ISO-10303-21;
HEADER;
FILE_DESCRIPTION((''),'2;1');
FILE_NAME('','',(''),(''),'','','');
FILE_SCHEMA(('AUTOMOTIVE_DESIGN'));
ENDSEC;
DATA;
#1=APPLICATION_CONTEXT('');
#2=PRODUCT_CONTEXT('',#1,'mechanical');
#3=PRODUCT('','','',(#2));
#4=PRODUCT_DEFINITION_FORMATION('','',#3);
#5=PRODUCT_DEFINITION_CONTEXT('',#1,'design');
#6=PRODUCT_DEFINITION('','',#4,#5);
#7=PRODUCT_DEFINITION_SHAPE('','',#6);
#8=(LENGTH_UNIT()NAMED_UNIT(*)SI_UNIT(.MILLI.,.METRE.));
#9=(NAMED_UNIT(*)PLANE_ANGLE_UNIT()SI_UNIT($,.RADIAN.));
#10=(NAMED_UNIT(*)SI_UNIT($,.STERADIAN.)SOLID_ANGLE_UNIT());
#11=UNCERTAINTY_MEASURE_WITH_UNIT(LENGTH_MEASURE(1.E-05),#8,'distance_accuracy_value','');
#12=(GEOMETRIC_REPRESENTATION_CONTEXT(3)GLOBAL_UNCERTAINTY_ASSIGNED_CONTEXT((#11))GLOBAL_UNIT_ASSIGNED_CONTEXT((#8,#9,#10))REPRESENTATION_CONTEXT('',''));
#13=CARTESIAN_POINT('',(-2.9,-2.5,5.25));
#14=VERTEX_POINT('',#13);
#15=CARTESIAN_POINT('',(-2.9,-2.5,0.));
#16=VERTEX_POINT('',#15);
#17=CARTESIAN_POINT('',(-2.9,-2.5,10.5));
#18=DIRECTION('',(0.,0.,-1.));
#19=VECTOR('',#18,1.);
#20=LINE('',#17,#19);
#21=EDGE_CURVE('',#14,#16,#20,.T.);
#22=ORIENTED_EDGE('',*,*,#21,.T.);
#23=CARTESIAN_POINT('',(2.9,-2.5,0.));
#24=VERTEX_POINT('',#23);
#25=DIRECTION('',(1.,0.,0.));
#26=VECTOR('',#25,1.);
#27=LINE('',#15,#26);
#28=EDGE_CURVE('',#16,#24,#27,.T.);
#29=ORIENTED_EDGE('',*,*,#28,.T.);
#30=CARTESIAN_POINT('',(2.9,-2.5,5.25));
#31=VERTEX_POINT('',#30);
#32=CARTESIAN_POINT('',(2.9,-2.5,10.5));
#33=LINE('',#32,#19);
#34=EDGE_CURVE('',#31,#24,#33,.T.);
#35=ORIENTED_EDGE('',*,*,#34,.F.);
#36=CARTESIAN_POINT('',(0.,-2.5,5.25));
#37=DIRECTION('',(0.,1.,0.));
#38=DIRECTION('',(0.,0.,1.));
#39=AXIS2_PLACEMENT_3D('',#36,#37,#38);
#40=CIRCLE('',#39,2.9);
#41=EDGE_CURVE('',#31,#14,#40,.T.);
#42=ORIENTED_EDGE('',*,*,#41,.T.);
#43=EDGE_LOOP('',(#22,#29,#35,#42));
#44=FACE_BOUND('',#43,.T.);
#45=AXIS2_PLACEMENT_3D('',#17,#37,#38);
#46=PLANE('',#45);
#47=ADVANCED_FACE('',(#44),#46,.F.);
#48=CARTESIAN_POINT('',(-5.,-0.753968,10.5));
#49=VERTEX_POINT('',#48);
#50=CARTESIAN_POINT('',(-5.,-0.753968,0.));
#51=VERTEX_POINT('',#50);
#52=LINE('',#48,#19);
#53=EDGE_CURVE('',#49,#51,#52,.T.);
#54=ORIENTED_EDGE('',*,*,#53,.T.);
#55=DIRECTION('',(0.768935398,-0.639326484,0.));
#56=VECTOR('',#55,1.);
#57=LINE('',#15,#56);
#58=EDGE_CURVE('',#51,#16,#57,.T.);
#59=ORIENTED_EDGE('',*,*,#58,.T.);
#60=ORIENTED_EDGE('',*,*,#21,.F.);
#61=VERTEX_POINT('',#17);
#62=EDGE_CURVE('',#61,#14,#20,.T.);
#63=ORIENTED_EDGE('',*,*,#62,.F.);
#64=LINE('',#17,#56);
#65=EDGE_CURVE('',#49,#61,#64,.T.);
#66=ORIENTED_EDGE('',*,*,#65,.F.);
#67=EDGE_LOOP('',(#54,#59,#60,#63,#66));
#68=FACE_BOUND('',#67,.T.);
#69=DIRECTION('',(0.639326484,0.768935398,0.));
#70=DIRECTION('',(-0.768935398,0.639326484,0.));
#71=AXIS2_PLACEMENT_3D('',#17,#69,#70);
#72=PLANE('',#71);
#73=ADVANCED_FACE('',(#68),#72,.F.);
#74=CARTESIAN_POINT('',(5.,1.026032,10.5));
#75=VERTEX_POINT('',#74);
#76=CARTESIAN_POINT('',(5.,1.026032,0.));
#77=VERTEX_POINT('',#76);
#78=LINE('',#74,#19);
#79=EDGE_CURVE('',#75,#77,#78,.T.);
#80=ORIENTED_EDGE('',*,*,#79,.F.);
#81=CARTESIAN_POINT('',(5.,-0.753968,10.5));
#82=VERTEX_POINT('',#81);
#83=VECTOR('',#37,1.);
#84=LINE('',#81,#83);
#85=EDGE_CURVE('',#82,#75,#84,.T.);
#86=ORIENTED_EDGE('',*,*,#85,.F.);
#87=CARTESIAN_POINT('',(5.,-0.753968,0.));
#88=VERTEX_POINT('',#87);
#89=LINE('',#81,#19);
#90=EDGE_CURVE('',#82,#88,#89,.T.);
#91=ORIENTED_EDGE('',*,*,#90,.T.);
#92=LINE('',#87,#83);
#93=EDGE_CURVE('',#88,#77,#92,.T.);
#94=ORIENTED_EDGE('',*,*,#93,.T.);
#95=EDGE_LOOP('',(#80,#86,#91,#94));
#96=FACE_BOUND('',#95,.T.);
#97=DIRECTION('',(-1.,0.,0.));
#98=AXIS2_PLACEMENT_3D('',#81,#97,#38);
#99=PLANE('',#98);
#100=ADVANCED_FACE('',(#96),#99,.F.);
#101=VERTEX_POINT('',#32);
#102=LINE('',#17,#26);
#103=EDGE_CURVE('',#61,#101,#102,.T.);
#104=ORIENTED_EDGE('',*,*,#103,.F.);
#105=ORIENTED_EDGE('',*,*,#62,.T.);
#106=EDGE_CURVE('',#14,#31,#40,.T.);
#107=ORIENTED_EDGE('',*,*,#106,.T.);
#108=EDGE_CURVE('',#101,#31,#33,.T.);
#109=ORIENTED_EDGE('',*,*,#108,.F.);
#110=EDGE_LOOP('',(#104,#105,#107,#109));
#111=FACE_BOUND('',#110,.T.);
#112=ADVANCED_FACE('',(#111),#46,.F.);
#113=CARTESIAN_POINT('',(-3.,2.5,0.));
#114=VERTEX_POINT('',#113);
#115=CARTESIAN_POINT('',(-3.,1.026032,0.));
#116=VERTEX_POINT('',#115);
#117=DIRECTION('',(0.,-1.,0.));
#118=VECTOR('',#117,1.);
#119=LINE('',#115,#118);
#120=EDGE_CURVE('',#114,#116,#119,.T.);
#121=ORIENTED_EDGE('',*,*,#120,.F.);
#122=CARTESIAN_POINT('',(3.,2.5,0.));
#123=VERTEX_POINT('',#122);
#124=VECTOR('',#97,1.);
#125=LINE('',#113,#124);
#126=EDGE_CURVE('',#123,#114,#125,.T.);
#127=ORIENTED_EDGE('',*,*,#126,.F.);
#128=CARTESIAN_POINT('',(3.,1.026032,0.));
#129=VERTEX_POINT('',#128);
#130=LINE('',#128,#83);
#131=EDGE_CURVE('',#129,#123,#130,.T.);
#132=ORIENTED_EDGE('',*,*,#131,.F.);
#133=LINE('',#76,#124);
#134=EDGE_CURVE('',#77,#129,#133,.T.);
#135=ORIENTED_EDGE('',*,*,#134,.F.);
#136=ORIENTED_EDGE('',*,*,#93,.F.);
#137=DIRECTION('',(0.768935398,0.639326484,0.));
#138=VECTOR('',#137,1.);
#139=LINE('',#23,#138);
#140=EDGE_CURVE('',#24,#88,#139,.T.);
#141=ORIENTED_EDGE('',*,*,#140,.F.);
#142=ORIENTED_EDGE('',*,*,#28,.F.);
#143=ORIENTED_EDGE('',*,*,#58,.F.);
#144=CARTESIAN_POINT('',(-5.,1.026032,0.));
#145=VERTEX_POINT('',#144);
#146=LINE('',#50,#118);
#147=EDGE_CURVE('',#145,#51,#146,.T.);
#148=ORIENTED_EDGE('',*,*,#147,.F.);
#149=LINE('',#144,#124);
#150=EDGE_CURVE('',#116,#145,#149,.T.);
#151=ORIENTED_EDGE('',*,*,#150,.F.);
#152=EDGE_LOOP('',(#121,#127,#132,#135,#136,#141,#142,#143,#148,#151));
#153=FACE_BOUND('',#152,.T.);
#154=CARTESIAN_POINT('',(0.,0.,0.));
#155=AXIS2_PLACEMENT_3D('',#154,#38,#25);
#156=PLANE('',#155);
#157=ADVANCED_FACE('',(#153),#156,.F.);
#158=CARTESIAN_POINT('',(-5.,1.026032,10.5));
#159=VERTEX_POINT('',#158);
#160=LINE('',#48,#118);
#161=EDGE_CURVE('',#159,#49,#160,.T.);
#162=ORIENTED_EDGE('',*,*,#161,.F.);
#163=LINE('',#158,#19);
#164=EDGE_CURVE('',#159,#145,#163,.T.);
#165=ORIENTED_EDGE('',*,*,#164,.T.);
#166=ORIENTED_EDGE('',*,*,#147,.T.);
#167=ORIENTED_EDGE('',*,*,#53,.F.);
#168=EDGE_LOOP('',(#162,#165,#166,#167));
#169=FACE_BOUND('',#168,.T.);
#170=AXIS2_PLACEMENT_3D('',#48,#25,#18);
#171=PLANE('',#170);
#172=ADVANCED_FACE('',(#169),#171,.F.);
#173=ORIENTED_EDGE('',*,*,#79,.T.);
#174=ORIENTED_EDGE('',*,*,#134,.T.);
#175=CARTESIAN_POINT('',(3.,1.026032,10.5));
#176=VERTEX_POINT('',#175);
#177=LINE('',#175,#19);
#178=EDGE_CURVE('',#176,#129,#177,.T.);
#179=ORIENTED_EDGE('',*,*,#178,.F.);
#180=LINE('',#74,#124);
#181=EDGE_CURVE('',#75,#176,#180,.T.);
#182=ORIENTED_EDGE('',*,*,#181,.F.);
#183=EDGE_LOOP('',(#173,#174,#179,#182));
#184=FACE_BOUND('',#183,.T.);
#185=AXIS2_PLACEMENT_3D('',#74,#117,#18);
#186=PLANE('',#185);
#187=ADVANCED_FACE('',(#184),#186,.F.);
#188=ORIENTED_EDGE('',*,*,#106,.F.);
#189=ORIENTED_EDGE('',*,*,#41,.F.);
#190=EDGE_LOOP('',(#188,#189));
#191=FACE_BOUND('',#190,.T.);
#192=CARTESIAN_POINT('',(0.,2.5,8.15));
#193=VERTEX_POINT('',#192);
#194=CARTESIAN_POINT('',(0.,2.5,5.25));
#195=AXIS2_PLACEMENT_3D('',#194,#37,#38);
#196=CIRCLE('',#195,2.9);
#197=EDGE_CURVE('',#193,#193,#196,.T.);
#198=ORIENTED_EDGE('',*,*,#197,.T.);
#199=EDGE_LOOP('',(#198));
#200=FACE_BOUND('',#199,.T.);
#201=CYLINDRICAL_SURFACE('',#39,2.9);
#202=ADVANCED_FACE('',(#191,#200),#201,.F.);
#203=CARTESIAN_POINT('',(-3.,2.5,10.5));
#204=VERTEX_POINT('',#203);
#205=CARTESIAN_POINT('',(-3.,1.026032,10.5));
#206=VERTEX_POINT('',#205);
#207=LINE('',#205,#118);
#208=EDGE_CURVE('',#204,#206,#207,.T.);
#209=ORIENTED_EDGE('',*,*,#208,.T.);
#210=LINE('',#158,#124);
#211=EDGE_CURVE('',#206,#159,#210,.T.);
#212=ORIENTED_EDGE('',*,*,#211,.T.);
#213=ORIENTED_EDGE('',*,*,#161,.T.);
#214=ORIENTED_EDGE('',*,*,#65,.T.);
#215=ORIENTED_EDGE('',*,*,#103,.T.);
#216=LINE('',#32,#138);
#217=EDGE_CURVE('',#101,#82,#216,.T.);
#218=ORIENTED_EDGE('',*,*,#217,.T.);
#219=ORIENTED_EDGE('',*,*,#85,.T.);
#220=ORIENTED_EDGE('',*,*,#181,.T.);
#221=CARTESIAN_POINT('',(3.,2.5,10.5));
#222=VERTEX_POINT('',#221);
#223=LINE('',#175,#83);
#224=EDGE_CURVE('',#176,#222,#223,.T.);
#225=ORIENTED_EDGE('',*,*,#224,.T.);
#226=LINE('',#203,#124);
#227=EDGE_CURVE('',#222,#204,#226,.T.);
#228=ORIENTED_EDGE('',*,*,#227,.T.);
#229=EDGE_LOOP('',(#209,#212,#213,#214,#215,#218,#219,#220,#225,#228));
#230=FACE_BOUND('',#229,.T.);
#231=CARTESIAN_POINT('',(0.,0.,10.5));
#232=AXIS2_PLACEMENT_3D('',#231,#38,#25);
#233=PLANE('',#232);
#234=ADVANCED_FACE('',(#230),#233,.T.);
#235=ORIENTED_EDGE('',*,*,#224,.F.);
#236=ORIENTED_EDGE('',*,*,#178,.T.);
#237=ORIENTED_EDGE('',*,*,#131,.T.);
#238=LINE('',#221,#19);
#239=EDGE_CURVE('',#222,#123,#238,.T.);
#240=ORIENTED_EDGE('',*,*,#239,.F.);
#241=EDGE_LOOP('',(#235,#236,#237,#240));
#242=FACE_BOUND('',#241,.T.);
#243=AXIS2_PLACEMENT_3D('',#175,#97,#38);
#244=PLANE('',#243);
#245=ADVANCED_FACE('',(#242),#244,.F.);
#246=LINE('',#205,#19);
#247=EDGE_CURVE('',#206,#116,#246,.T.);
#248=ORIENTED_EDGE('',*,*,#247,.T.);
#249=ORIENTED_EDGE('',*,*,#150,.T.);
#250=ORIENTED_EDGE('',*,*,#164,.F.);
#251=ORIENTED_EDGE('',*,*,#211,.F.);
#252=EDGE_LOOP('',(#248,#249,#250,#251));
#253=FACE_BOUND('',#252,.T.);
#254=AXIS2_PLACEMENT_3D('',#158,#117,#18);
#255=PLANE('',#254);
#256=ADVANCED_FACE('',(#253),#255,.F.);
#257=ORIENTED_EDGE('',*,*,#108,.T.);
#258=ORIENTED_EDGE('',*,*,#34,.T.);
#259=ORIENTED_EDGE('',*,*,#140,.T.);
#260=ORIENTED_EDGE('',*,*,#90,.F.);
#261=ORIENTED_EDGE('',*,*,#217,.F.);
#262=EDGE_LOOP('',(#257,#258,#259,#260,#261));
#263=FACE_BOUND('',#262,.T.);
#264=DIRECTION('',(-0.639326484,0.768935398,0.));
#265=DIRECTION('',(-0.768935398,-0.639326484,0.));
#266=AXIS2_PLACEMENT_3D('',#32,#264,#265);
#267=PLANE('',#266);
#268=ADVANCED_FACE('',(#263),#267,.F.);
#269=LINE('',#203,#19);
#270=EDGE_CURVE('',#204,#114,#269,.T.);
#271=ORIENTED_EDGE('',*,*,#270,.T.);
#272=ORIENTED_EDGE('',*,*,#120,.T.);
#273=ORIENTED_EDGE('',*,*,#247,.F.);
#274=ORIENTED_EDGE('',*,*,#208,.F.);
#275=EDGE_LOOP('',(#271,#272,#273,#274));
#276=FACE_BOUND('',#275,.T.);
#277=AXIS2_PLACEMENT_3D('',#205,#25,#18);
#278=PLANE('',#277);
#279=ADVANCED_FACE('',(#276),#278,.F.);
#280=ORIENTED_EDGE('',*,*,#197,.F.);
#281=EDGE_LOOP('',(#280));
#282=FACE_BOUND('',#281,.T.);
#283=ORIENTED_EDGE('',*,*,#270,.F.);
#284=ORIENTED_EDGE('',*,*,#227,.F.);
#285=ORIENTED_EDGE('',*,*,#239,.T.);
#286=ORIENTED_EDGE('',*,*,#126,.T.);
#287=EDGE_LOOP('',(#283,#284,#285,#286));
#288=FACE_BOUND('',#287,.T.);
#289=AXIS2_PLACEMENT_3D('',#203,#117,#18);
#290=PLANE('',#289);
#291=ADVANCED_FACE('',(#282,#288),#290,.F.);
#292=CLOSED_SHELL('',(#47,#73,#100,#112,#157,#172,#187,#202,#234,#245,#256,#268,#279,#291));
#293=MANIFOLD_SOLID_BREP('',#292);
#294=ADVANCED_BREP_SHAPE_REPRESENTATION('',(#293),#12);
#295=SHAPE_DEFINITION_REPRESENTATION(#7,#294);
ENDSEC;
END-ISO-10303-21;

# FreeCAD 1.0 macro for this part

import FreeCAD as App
import Part
import Sketcher
from FreeCAD import Vector


def add_polygon(sketch, points):
    """Adds a closed chain of lines whose ends are joined by coincident constraints."""
    first, n = sketch.GeometryCount, len(points)
    for a, b in zip(points, points[1:] + points[:1]):
        sketch.addGeometry(Part.LineSegment(App.Vector(*a, 0), App.Vector(*b, 0)), False)
    for i in range(n):
        sketch.addConstraint(Sketcher.Constraint("Coincident", first + i, 2, first + (i + 1) % n, 1))

doc = App.newDocument("Part")
body = doc.addObject("PartDesign::Body", "Body")

# Sketch on XY plane
sketch1 = body.newObject("Sketcher::SketchObject", "Sketch")
sketch1.AttachmentSupport = (doc.getObject("XY_Plane"), [""])
sketch1.MapMode = "FlatFace"
add_polygon(sketch1, [(-2.9, -2.5), (2.9, -2.5), (5, -0.8), (5, 1), (3, 1), (3, 2.5), (-3, 2.5), (-3, 1), (-5, 1), (-5, -0.8)])  # lines 0-9
sketch1.addConstraint([
    Sketcher.Constraint("Horizontal", 0),
    Sketcher.Constraint("Vertical", 2),
    Sketcher.Constraint("Horizontal", 3),
    Sketcher.Constraint("Vertical", 4),
    Sketcher.Constraint("Horizontal", 5),
    Sketcher.Constraint("Vertical", 6),
    Sketcher.Constraint("Horizontal", 7),
    Sketcher.Constraint("Vertical", 8),
    Sketcher.Constraint("Symmetric", 3, 2, 6, 2, -2),
    Sketcher.Constraint("Symmetric", 1, 2, 8, 2, -2),
    Sketcher.Constraint("Equal", 1, 9),
    Sketcher.Constraint("DistanceX", 3, 2, 3, 1, 2.0),
    Sketcher.Constraint("DistanceX", 5, 2, 5, 1, 6.0),
    Sketcher.Constraint("DistanceX", 0, 1, 0, 2, 5.8),
    Sketcher.Constraint("DistanceY", 0, 2, 4, 2, 5.0),
    Sketcher.Constraint("DistanceY", 2, 1, 2, 2, 1.78),
    Sketcher.Constraint("DistanceY", 0, 2, -1, 1, 2.5),
    Sketcher.Constraint("DistanceY", 4, 1, 4, 2, 1.473968),
])
pad1 = body.newObject("PartDesign::Pad", "Pad")
pad1.Profile = sketch1
pad1.Length = 10.5

# Sketch on XZ plane
sketch2 = body.newObject("Sketcher::SketchObject", "Sketch001")
sketch2.AttachmentSupport = (doc.getObject("XZ_Plane"), [""])
sketch2.MapMode = "FlatFace"
sketch2.AttachmentOffset = App.Placement(Vector(0, 0, -2.5), App.Rotation())
sketch2.addGeometry(Part.Circle(Vector(0, 5.2, 0), Vector(0, 0, 1), 2.9), False)
sketch2.addConstraint([
    Sketcher.Constraint("PointOnObject", 0, 3, -2),
    Sketcher.Constraint("Diameter", 0, 5.8),
    Sketcher.Constraint("DistanceY", -1, 1, 0, 3, 5.25),
])
pocket1 = body.newObject("PartDesign::Pocket", "Pocket")
pocket1.Profile = sketch2
pocket1.Type = "ThroughAll"
pocket1.Reversed = True

doc.recompute()
